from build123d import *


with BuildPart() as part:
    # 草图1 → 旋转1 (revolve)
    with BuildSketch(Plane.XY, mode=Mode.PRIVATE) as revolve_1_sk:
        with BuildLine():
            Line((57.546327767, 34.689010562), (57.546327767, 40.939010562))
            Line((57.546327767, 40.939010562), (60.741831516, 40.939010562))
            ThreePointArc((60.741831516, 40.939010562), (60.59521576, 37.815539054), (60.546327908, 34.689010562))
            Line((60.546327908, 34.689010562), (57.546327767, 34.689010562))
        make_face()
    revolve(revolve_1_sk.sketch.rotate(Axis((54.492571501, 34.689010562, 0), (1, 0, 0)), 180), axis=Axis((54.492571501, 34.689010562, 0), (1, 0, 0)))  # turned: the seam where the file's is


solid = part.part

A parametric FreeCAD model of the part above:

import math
import FreeCAD as App
import Part
import Sketcher
Q = App.Units.Quantity

doc = App.newDocument("Part")
body = doc.addObject("PartDesign::Body", "Body")

sketch1 = body.newObject("Sketcher::SketchObject", "Sketch")
sketch1.AttachmentSupport = (doc.getObject("XY_Plane"), [""])
sketch1.MapMode = "FlatFace"
sketch1.addGeometry([
    Part.LineSegment(App.Vector(57.5, 40.9, 0), App.Vector(57.5, 34.7, 0)),
    Part.LineSegment(App.Vector(57.5, 34.7, 0), App.Vector(60.5, 34.7, 0)),
    Part.ArcOfCircle(Part.Circle(App.Vector(160.5, 34.7, 0), App.Vector(0, 0, 1), 100), math.radians(176.42), math.radians(180)),
    Part.LineSegment(App.Vector(60.7, 40.9, 0), App.Vector(57.5, 40.9, 0)),
], False)
sketch1.addGeometry(Part.LineSegment(App.Vector(57.5, 34.7, 0), App.Vector(160.5, 34.7, 0)), True)
sketch1.addConstraint([
    Sketcher.Constraint("Coincident", 0, 2, 1, 1),
    Sketcher.Constraint("Coincident", 1, 2, 2, 2),
    Sketcher.Constraint("Coincident", 2, 1, 3, 1),
    Sketcher.Constraint("Coincident", 3, 2, 0, 1),
    Sketcher.Constraint("Vertical", 0),
    Sketcher.Constraint("Horizontal", 1),
    Sketcher.Constraint("Horizontal", 3),
    Sketcher.Constraint("Horizontal", 4),
    Sketcher.Constraint("Coincident", 4, 1, 0, 2),
    Sketcher.Constraint("Coincident", 4, 2, 2, 3),
    Sketcher.Constraint("Radius", 2, Q("100 mm")),
    Sketcher.Constraint("DistanceX", 1, 1, 1, 2, Q("3 mm")),
    Sketcher.Constraint("DistanceY", 0, 2, 0, 1, Q("6.25 mm")),
    Sketcher.Constraint("DistanceY", -1, 1, 2, 3, Q("34.689011 mm")),
    Sketcher.Constraint("DistanceX", -1, 1, 2, 1, Q("60.741832 mm")),
])
revolution = body.newObject("PartDesign::Revolution", "Revolution")
revolution.Profile = sketch1
revolution.ReferenceAxis = (sketch1, ["Axis0"])
revolution.Angle = 360

doc.recompute()
